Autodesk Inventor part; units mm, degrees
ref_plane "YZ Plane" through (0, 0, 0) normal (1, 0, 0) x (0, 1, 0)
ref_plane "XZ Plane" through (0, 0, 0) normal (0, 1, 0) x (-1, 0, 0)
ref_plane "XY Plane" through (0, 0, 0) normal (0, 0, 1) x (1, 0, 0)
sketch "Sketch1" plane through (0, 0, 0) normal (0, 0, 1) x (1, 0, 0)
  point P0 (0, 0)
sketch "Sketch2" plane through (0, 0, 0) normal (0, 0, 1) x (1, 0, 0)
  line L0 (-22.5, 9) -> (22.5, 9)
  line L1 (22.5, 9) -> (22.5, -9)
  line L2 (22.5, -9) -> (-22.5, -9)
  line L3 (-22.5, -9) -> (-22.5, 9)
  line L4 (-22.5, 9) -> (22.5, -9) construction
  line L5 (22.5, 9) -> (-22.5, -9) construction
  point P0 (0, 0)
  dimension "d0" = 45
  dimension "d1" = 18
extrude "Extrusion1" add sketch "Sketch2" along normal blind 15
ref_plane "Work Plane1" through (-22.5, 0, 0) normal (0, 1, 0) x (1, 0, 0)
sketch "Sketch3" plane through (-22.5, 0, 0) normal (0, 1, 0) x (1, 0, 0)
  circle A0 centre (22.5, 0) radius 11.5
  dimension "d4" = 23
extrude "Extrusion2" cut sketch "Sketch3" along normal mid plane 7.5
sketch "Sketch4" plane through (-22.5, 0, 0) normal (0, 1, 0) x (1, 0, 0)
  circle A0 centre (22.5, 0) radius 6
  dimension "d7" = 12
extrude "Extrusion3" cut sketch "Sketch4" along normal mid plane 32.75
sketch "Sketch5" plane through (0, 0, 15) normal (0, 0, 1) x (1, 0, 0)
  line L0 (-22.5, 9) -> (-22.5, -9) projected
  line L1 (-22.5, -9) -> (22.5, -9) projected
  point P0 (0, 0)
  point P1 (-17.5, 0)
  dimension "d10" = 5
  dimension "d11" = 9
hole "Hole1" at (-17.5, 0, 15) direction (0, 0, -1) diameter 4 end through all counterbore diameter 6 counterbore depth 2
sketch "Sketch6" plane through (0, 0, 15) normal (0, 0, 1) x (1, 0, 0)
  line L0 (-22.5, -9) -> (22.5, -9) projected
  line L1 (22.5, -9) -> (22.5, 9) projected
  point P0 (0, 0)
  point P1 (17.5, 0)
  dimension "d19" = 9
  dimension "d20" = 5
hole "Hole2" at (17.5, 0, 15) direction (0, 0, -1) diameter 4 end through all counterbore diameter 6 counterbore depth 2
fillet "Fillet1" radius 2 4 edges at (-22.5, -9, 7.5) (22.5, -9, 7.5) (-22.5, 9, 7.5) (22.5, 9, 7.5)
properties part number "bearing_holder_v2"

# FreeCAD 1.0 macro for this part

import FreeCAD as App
import Part
import Sketcher
from FreeCAD import Vector
Q = App.Units.Quantity


def edges_at(feature, points):
    """Names of the edges that pass closest to the given points."""
    edges = feature.Shape.Edges
    near = lambda p: min(range(len(edges)), key=lambda i: edges[i].distToShape(Part.Vertex(*p))[0])
    return sorted({f"Edge{near(p) + 1}" for p in points})


def add_polygon(sketch, points):
    """Adds a closed chain of lines whose ends are joined by coincident constraints."""
    first, n = sketch.GeometryCount, len(points)
    for a, b in zip(points, points[1:] + points[:1]):
        sketch.addGeometry(Part.LineSegment(App.Vector(*a, 0), App.Vector(*b, 0)), False)
    for i in range(n):
        sketch.addConstraint(Sketcher.Constraint("Coincident", first + i, 2, first + (i + 1) % n, 1))

doc = App.newDocument("Part")
body = doc.addObject("PartDesign::Body", "Body")

sketch1 = body.newObject("Sketcher::SketchObject", "Sketch")
sketch1.AttachmentSupport = (doc.getObject("XY_Plane"), [""])
sketch1.MapMode = "FlatFace"
add_polygon(sketch1, [(22.5, 9), (-22.5, 9), (-22.5, -9), (22.5, -9)])
sketch1.addConstraint([
    Sketcher.Constraint("Horizontal", 0),
    Sketcher.Constraint("Vertical", 1),
    Sketcher.Constraint("Horizontal", 2),
    Sketcher.Constraint("Vertical", 3),
    Sketcher.Constraint("Symmetric", 0, 2, 2, 2, -1, 1),
    Sketcher.Constraint("DistanceX", 0, 2, 0, 1, Q("45 mm")),
    Sketcher.Constraint("DistanceY", 1, 2, 1, 1, Q("18 mm")),
])
pad1 = body.newObject("PartDesign::Pad", "Pad")
pad1.Profile = sketch1
pad1.Length = 15

sketch2 = body.newObject("Sketcher::SketchObject", "Sketch001")
sketch2.AttachmentSupport = (doc.getObject("XZ_Plane"), [""])
sketch2.MapMode = "FlatFace"
sketch2.addGeometry(Part.Circle(Vector(0, 0, 0), Vector(0, 0, 1), 11.5), False)
sketch2.addConstraint([
    Sketcher.Constraint("Coincident", 0, 3, -1, 1),
    Sketcher.Constraint("Diameter", 0, Q("23 mm")),
])
pocket1 = body.newObject("PartDesign::Pocket", "Pocket")
pocket1.Profile = sketch2
pocket1.Length = 7.5
pocket1.Midplane = True

sketch3 = body.newObject("Sketcher::SketchObject", "Sketch002")
sketch3.AttachmentSupport = (doc.getObject("XZ_Plane"), [""])
sketch3.MapMode = "FlatFace"
sketch3.addGeometry(Part.Circle(Vector(0, 0, 0), Vector(0, 0, 1), 6), False)
sketch3.addConstraint([
    Sketcher.Constraint("Coincident", 0, 3, -1, 1),
    Sketcher.Constraint("Diameter", 0, Q("12 mm")),
])
pocket2 = body.newObject("PartDesign::Pocket", "Pocket001")
pocket2.Profile = sketch3
pocket2.Length = 32.75
pocket2.Midplane = True

sketch4 = body.newObject("Sketcher::SketchObject", "Sketch003")
sketch4.AttachmentSupport = (doc.getObject("XY_Plane"), [""])
sketch4.MapMode = "FlatFace"
sketch4.AttachmentOffset = App.Placement(Vector(0, 0, 15), App.Rotation())
sketch4.addGeometry(Part.Circle(Vector(-17.5, 0, 0), Vector(0, 0, 1), 2), False)
sketch4.addConstraint([
    Sketcher.Constraint("PointOnObject", 0, 3, -1),
    Sketcher.Constraint("Diameter", 0, Q("4 mm")),
    Sketcher.Constraint("DistanceX", 0, 3, -1, 1, Q("17.5 mm")),
])
doc.recompute()
hole = body.newObject("PartDesign::Hole", "Hole")
hole.Profile = sketch4
hole.ThreadType = "None"
hole.Diameter = 4
hole.DepthType = "ThroughAll"
hole.HoleCutType = "Counterbore"
hole.HoleCutDiameter = 6
hole.HoleCutDepth = 2

sketch5 = body.newObject("Sketcher::SketchObject", "Sketch004")
sketch5.AttachmentSupport = (doc.getObject("XY_Plane"), [""])
sketch5.MapMode = "FlatFace"
sketch5.AttachmentOffset = App.Placement(Vector(0, 0, 15), App.Rotation())
sketch5.addGeometry(Part.Circle(Vector(17.5, 0, 0), Vector(0, 0, 1), 2), False)
sketch5.addConstraint([
    Sketcher.Constraint("PointOnObject", 0, 3, -1),
    Sketcher.Constraint("Diameter", 0, Q("4 mm")),
    Sketcher.Constraint("DistanceX", -1, 1, 0, 3, Q("17.5 mm")),
])
doc.recompute()
hole2 = body.newObject("PartDesign::Hole", "Hole001")
hole2.Profile = sketch5
hole2.ThreadType = "None"
hole2.Diameter = 4
hole2.DepthType = "ThroughAll"
hole2.HoleCutType = "Counterbore"
hole2.HoleCutDiameter = 6
hole2.HoleCutDepth = 2
doc.recompute()

fillet = body.newObject("PartDesign::Fillet", "Fillet")
fillet.Base = (hole2, edges_at(hole2, [
    (-22.5, -9, 7.5),
    (22.5, -9, 7.5),
    (-22.5, 9, 7.5),
    (22.5, 9, 7.5),
]))
fillet.Radius = 2

doc.recompute()
